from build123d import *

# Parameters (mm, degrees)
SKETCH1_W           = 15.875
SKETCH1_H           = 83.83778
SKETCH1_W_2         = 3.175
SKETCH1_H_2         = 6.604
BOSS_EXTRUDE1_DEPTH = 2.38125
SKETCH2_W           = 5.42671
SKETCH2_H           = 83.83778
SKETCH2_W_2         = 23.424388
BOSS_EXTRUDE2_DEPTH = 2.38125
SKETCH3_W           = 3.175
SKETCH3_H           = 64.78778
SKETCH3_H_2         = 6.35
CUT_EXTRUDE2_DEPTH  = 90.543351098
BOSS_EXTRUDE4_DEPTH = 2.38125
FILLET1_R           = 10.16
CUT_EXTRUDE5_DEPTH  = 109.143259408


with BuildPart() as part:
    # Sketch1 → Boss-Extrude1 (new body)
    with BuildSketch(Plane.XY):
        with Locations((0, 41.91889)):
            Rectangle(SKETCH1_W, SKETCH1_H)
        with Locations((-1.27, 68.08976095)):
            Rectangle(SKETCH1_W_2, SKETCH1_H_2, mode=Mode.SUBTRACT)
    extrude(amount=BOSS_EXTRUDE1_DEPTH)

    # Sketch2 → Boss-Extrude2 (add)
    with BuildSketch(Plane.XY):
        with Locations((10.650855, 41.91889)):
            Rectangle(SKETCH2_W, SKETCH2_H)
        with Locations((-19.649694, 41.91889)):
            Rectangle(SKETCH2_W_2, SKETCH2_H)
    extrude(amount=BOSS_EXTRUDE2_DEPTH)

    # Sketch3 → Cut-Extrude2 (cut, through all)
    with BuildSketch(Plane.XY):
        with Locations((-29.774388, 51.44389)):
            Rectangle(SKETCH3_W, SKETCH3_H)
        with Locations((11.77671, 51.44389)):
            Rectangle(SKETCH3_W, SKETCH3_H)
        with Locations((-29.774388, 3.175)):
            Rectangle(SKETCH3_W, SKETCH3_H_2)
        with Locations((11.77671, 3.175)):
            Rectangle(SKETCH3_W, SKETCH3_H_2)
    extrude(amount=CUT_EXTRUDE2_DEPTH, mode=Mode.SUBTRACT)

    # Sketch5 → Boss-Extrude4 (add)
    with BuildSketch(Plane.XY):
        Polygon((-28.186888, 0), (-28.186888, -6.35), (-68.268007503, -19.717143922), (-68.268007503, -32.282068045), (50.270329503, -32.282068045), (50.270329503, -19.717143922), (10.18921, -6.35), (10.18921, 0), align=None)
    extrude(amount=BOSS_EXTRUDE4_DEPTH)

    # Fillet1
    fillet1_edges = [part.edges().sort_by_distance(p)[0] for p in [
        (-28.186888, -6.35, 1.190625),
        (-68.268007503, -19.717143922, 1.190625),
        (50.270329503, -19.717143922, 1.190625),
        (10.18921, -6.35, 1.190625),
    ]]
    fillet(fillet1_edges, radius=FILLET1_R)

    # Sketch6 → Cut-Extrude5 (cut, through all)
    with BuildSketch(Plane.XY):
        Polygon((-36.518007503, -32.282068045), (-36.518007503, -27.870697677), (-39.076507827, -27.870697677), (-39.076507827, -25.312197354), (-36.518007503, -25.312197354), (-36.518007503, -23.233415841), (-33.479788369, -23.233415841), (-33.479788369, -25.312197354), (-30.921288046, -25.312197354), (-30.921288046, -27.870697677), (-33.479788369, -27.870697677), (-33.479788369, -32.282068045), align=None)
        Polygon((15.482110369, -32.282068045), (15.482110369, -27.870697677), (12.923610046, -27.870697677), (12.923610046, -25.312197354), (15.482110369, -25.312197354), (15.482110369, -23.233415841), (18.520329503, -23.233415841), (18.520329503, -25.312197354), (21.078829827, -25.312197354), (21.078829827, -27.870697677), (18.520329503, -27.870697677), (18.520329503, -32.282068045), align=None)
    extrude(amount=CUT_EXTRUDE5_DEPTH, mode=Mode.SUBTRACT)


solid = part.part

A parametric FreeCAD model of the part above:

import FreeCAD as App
import Part
import Sketcher
Q = App.Units.Quantity


def edges_at(feature, points):
    """Names of the edges that pass closest to the given points."""
    edges = feature.Shape.Edges
    near = lambda p: min(range(len(edges)), key=lambda i: edges[i].distToShape(Part.Vertex(*p))[0])
    return sorted({f"Edge{near(p) + 1}" for p in points})


def add_polygon(sketch, points):
    """Adds a closed chain of lines whose ends are joined by coincident constraints."""
    first, n = sketch.GeometryCount, len(points)
    for a, b in zip(points, points[1:] + points[:1]):
        sketch.addGeometry(Part.LineSegment(App.Vector(*a, 0), App.Vector(*b, 0)), False)
    for i in range(n):
        sketch.addConstraint(Sketcher.Constraint("Coincident", first + i, 2, first + (i + 1) % n, 1))

doc = App.newDocument("Part")
params = doc.addObject("Spreadsheet::Sheet", "Params")
for row, (alias, value) in enumerate([
    ("sketch1_height", "0.26 in"),
    ("sketch1_width", "0.625 in"),
    ("pad1_length", "0.09375 in"),
    ("pad2_length", "0.09375 in"),
    ("sketch3_height", "0.25 in"),
    ("sketch3_width", "0.125 in"),
    ("sketch4_height", "0.25 in"),
    ("pad3_length", "0.09375 in"),
    ("fillet_radius", "0.4 in"),
], start=1):
    params.set(f"A{row}", alias)
    params.set(f"B{row}", "=" + value)
    params.setAlias(f"B{row}", alias)

body = doc.addObject("PartDesign::Body", "Body")

sketch1 = body.newObject("Sketcher::SketchObject", "Sketch")
sketch1.AttachmentSupport = (doc.getObject("XY_Plane"), [""])
sketch1.MapMode = "FlatFace"
add_polygon(sketch1, [(-7.9, 83.8), (-7.9, 0), (7.9, 0), (7.9, 83.8)])
add_polygon(sketch1, [(0.3, 64.8), (-2.9, 64.8), (-2.9, 71.4), (0.3, 71.4)])
sketch1.addConstraint(Sketcher.Constraint("Vertical", 0))
sketch1.addConstraint(Sketcher.Constraint("Horizontal", 1))
sketch1.addConstraint(Sketcher.Constraint("Vertical", 2))
sketch1.addConstraint(Sketcher.Constraint("Horizontal", 3))
sketch1.addConstraint(Sketcher.Constraint("Horizontal", 4))
sketch1.addConstraint(Sketcher.Constraint("Vertical", 5))
sketch1.addConstraint(Sketcher.Constraint("Horizontal", 6))
sketch1.addConstraint(Sketcher.Constraint("Vertical", 7))
sketch1.addConstraint(Sketcher.Constraint("Symmetric", 0, 2, 1, 2, -1, 1))
sketch1.addConstraint(Sketcher.Constraint("DistanceY", 5, 1, 5, 2, Q("0.26 in")))
sketch1.addConstraint(Sketcher.Constraint("DistanceX", 3, 2, 4, 2, Q("0.2 in")))
sketch1.addConstraint(Sketcher.Constraint("DistanceX", 6, 2, 2, 2, Q("0.3 in")))
sketch1.addConstraint(Sketcher.Constraint("DistanceX", 1, 1, 1, 2, Q("0.625 in")))
sketch1.addConstraint(Sketcher.Constraint("DistanceY", 0, 2, 0, 1, Q("3.3007 in")))
sketch1.addConstraint(Sketcher.Constraint("DistanceY", -1, 1, 4, 2, 64.787761))
sketch1.setExpression("Constraints[17]", "Params.sketch1_height")
sketch1.setExpression("Constraints[20]", "Params.sketch1_width")
pad1 = body.newObject("PartDesign::Pad", "Pad")
pad1.Profile = sketch1
pad1.setExpression("Length", "Params.pad1_length")

sketch2 = body.newObject("Sketcher::SketchObject", "Sketch001")
sketch2.AttachmentSupport = (doc.getObject("XY_Plane"), [""])
sketch2.MapMode = "FlatFace"
add_polygon(sketch2, [(8, 84), (8, 0), (13, 0), (13, 84)])
add_polygon(sketch2, [(-31, 84), (-31, 0), (-8, 0), (-8, 84)])
sketch2.addConstraint(Sketcher.Constraint("Vertical", 0))
sketch2.addConstraint(Sketcher.Constraint("Horizontal", 1))
sketch2.addConstraint(Sketcher.Constraint("Vertical", 2))
sketch2.addConstraint(Sketcher.Constraint("Horizontal", 3))
sketch2.addConstraint(Sketcher.Constraint("Vertical", 4))
sketch2.addConstraint(Sketcher.Constraint("Horizontal", 5))
sketch2.addConstraint(Sketcher.Constraint("Vertical", 6))
sketch2.addConstraint(Sketcher.Constraint("Horizontal", 7))
sketch2.addConstraint(Sketcher.Constraint("Symmetric", 0, 2, 5, 2, -1, 1))
sketch2.addConstraint(Sketcher.Constraint("PointOnObject", 0, 2, -1))
sketch2.addConstraint(Sketcher.Constraint("Horizontal", 3, 2, 6, 2))
sketch2.addConstraint(Sketcher.Constraint("DistanceY", 0, 2, 0, 1, Q("3.3007 in")))
sketch2.addConstraint(Sketcher.Constraint("DistanceX", -1, 1, 0, 2, Q("0.3125 in")))
sketch2.addConstraint(Sketcher.Constraint("DistanceX", 1, 1, 1, 2, 5.42671))
sketch2.addConstraint(Sketcher.Constraint("DistanceX", 5, 1, 5, 2, 23.424388))
pad2 = body.newObject("PartDesign::Pad", "Pad001")
pad2.Profile = sketch2
pad2.setExpression("Length", "Params.pad2_length")

sketch3 = body.newObject("Sketcher::SketchObject", "Sketch002")
sketch3.AttachmentSupport = (doc.getObject("XY_Plane"), [""])
sketch3.MapMode = "FlatFace"
add_polygon(sketch3, [(-31.4, 83.8), (-31.4, 19.1), (-28.2, 19.1), (-28.2, 83.8)])
add_polygon(sketch3, [(10.2, 83.8), (10.2, 19.1), (13.4, 19.1), (13.4, 83.8)])
add_polygon(sketch3, [(-31.4, 6.3), (-31.4, 0), (-28.2, 0), (-28.2, 6.3)])
add_polygon(sketch3, [(10.2, 6.3), (10.2, 0), (13.4, 0), (13.4, 6.3)])
sketch3.addConstraint(Sketcher.Constraint("Vertical", 0))
sketch3.addConstraint(Sketcher.Constraint("Horizontal", 1))
sketch3.addConstraint(Sketcher.Constraint("Vertical", 2))
sketch3.addConstraint(Sketcher.Constraint("Horizontal", 3))
sketch3.addConstraint(Sketcher.Constraint("Vertical", 4))
sketch3.addConstraint(Sketcher.Constraint("Horizontal", 5))
sketch3.addConstraint(Sketcher.Constraint("Vertical", 6))
sketch3.addConstraint(Sketcher.Constraint("Horizontal", 7))
sketch3.addConstraint(Sketcher.Constraint("Vertical", 8))
sketch3.addConstraint(Sketcher.Constraint("Horizontal", 9))
sketch3.addConstraint(Sketcher.Constraint("Vertical", 10))
sketch3.addConstraint(Sketcher.Constraint("Horizontal", 11))
sketch3.addConstraint(Sketcher.Constraint("Vertical", 12))
sketch3.addConstraint(Sketcher.Constraint("Horizontal", 13))
sketch3.addConstraint(Sketcher.Constraint("Vertical", 14))
sketch3.addConstraint(Sketcher.Constraint("Horizontal", 15))
sketch3.addConstraint(Sketcher.Constraint("PointOnObject", 8, 2, -1))
sketch3.addConstraint(Sketcher.Constraint("PointOnObject", 12, 2, -1))
sketch3.addConstraint(Sketcher.Constraint("Horizontal", 1, 2, 4, 2))
sketch3.addConstraint(Sketcher.Constraint("Horizontal", 3, 2, 6, 2))
sketch3.addConstraint(Sketcher.Constraint("Horizontal", 11, 2, 14, 2))
sketch3.addConstraint(Sketcher.Constraint("Vertical", 3, 2, 8, 2))
sketch3.addConstraint(Sketcher.Constraint("Vertical", 2, 2, 9, 2))
sketch3.addConstraint(Sketcher.Constraint("Vertical", 7, 2, 12, 2))
sketch3.addConstraint(Sketcher.Constraint("Vertical", 6, 2, 13, 2))
sketch3.addConstraint(Sketcher.Constraint("Equal", 3, 5))
sketch3.addConstraint(Sketcher.Constraint("DistanceY", 8, 2, 8, 1, Q("0.25 in")))
sketch3.addConstraint(Sketcher.Constraint("DistanceY", 10, 2, 1, 2, Q("0.5 in")))
sketch3.addConstraint(Sketcher.Constraint("DistanceX", 1, 1, 1, 2, Q("0.125 in")))
sketch3.addConstraint(Sketcher.Constraint("DistanceY", 0, 2, 0, 1, Q("2.5507 in")))
sketch3.addConstraint(Sketcher.Constraint("DistanceX", 0, 2, -1, 1, 31.361888))
sketch3.addConstraint(Sketcher.Constraint("DistanceX", -1, 1, 4, 2, 10.18921))
sketch3.setExpression("Constraints[42]", "Params.sketch3_height")
sketch3.setExpression("Constraints[44]", "Params.sketch3_width")
pocket1 = body.newObject("PartDesign::Pocket", "Pocket")
pocket1.Profile = sketch3
pocket1.Type = "ThroughAll"
pocket1.Reversed = True

sketch4 = body.newObject("Sketcher::SketchObject", "Sketch003")
sketch4.AttachmentSupport = (doc.getObject("XY_Plane"), [""])
sketch4.MapMode = "FlatFace"
add_polygon(sketch4, [(-28, 0), (-28, -6), (-68, -20), (-68, -32), (50, -32), (50, -20), (10, -6), (10, 0)])
sketch4.addConstraint(Sketcher.Constraint("Vertical", 0))
sketch4.addConstraint(Sketcher.Constraint("Vertical", 2))
sketch4.addConstraint(Sketcher.Constraint("Horizontal", 3))
sketch4.addConstraint(Sketcher.Constraint("Vertical", 4))
sketch4.addConstraint(Sketcher.Constraint("Vertical", 6))
sketch4.addConstraint(Sketcher.Constraint("Horizontal", 7))
sketch4.addConstraint(Sketcher.Constraint("PointOnObject", 6, 2, -1))
sketch4.addConstraint(Sketcher.Constraint("Horizontal", 1, 2, 4, 2))
sketch4.addConstraint(Sketcher.Constraint("Horizontal", 0, 2, 5, 2))
sketch4.addConstraint(Sketcher.Constraint("Equal", 1, 5))
sketch4.addConstraint(Sketcher.Constraint("DistanceY", 0, 2, 0, 1, Q("0.25 in")))
sketch4.addConstraint(Sketcher.Constraint("Distance", 1, 42.251351))
sketch4.addConstraint(Sketcher.Constraint("DistanceX", 3, 1, 3, 2, 118.538337))
sketch4.addConstraint(Sketcher.Constraint("DistanceX", 7, 2, 7, 1, 38.376098))
sketch4.addConstraint(Sketcher.Constraint("DistanceY", 2, 2, 2, 1, 12.564924))
sketch4.addConstraint(Sketcher.Constraint("DistanceX", 0, 2, -1, 1, 28.186888))
sketch4.setExpression("Constraints[18]", "Params.sketch4_height")
pad3 = body.newObject("PartDesign::Pad", "Pad002")
pad3.Profile = sketch4
pad3.setExpression("Length", "Params.pad3_length")
doc.recompute()

fillet = body.newObject("PartDesign::Fillet", "Fillet")
fillet.Base = (pad3, edges_at(pad3, [
    (-28.187, -6.35, 1.191),
    (-68.268, -19.717, 1.191),
    (50.27, -19.717, 1.191),
    (10.189, -6.35, 1.191),
]))
fillet.setExpression("Radius", "Params.fillet_radius")

sketch5 = body.newObject("Sketcher::SketchObject", "Sketch004")
sketch5.AttachmentSupport = (doc.getObject("XY_Plane"), [""])
sketch5.MapMode = "FlatFace"
add_polygon(sketch5, [(-36.5, -27.9), (-36.5, -32.3), (-33.5, -32.3), (-33.5, -27.9), (-30.9, -27.9), (-30.9, -25.3), (-33.5, -25.3), (-33.5, -23.2), (-36.5, -23.2), (-36.5, -25.3), (-39.1, -25.3), (-39.1, -27.9)])
add_polygon(sketch5, [(15.5, -27.9), (15.5, -32.3), (18.5, -32.3), (18.5, -27.9), (21.1, -27.9), (21.1, -25.3), (18.5, -25.3), (18.5, -23.2), (15.5, -23.2), (15.5, -25.3), (12.9, -25.3), (12.9, -27.9)])
sketch5.addConstraint(Sketcher.Constraint("Vertical", 0))
sketch5.addConstraint(Sketcher.Constraint("Horizontal", 1))
sketch5.addConstraint(Sketcher.Constraint("Vertical", 2))
sketch5.addConstraint(Sketcher.Constraint("Horizontal", 3))
sketch5.addConstraint(Sketcher.Constraint("Vertical", 4))
sketch5.addConstraint(Sketcher.Constraint("Horizontal", 5))
sketch5.addConstraint(Sketcher.Constraint("Vertical", 6))
sketch5.addConstraint(Sketcher.Constraint("Horizontal", 7))
sketch5.addConstraint(Sketcher.Constraint("Vertical", 8))
sketch5.addConstraint(Sketcher.Constraint("Horizontal", 9))
sketch5.addConstraint(Sketcher.Constraint("Vertical", 10))
sketch5.addConstraint(Sketcher.Constraint("Horizontal", 11))
sketch5.addConstraint(Sketcher.Constraint("Vertical", 12))
sketch5.addConstraint(Sketcher.Constraint("Horizontal", 13))
sketch5.addConstraint(Sketcher.Constraint("Vertical", 14))
sketch5.addConstraint(Sketcher.Constraint("Horizontal", 15))
sketch5.addConstraint(Sketcher.Constraint("Vertical", 16))
sketch5.addConstraint(Sketcher.Constraint("Horizontal", 17))
sketch5.addConstraint(Sketcher.Constraint("Vertical", 18))
sketch5.addConstraint(Sketcher.Constraint("Horizontal", 19))
sketch5.addConstraint(Sketcher.Constraint("Vertical", 20))
sketch5.addConstraint(Sketcher.Constraint("Horizontal", 21))
sketch5.addConstraint(Sketcher.Constraint("Vertical", 22))
sketch5.addConstraint(Sketcher.Constraint("Horizontal", 23))
sketch5.addConstraint(Sketcher.Constraint("Horizontal", 5, 2, 8, 2))
sketch5.addConstraint(Sketcher.Constraint("Horizontal", 3, 2, 10, 2))
sketch5.addConstraint(Sketcher.Constraint("Horizontal", 1, 2, 12, 2))
sketch5.addConstraint(Sketcher.Constraint("Horizontal", 11, 2, 14, 2))
sketch5.addConstraint(Sketcher.Constraint("Horizontal", 9, 2, 16, 2))
sketch5.addConstraint(Sketcher.Constraint("Horizontal", 7, 2, 18, 2))
sketch5.addConstraint(Sketcher.Constraint("Horizontal", 17, 2, 20, 2))
sketch5.addConstraint(Sketcher.Constraint("Horizontal", 15, 2, 22, 2))
sketch5.addConstraint(Sketcher.Constraint("Vertical", 2, 2, 5, 2))
sketch5.addConstraint(Sketcher.Constraint("Vertical", 0, 2, 7, 2))
sketch5.addConstraint(Sketcher.Constraint("Vertical", 14, 2, 17, 2))
sketch5.addConstraint(Sketcher.Constraint("Vertical", 12, 2, 19, 2))
sketch5.addConstraint(Sketcher.Constraint("Equal", 5, 9))
sketch5.addConstraint(Sketcher.Constraint("Equal", 7, 13))
sketch5.addConstraint(Sketcher.Constraint("Equal", 11, 15))
sketch5.addConstraint(Sketcher.Constraint("Equal", 17, 21))
sketch5.addConstraint(Sketcher.Constraint("Equal", 23, 4))
sketch5.addConstraint(Sketcher.Constraint("DistanceX", 3, 1, 3, 2, 2.5585))
sketch5.addConstraint(Sketcher.Constraint("DistanceX", 1, 1, 1, 2, 3.038219))
sketch5.addConstraint(Sketcher.Constraint("DistanceY", 0, 2, 0, 1, 4.41137))
sketch5.addConstraint(Sketcher.Constraint("DistanceY", 6, 1, 6, 2, 2.078782))
sketch5.addConstraint(Sketcher.Constraint("DistanceX", 3, 2, 12, 2, 46.403398))
sketch5.addConstraint(Sketcher.Constraint("DistanceY", 0, 2, -1, 1, 32.282068))
sketch5.addConstraint(Sketcher.Constraint("DistanceX", 1, 2, -1, 1, 33.479788))
pocket2 = body.newObject("PartDesign::Pocket", "Pocket001")
pocket2.Profile = sketch5
pocket2.Type = "ThroughAll"
pocket2.Reversed = True

doc.recompute()
